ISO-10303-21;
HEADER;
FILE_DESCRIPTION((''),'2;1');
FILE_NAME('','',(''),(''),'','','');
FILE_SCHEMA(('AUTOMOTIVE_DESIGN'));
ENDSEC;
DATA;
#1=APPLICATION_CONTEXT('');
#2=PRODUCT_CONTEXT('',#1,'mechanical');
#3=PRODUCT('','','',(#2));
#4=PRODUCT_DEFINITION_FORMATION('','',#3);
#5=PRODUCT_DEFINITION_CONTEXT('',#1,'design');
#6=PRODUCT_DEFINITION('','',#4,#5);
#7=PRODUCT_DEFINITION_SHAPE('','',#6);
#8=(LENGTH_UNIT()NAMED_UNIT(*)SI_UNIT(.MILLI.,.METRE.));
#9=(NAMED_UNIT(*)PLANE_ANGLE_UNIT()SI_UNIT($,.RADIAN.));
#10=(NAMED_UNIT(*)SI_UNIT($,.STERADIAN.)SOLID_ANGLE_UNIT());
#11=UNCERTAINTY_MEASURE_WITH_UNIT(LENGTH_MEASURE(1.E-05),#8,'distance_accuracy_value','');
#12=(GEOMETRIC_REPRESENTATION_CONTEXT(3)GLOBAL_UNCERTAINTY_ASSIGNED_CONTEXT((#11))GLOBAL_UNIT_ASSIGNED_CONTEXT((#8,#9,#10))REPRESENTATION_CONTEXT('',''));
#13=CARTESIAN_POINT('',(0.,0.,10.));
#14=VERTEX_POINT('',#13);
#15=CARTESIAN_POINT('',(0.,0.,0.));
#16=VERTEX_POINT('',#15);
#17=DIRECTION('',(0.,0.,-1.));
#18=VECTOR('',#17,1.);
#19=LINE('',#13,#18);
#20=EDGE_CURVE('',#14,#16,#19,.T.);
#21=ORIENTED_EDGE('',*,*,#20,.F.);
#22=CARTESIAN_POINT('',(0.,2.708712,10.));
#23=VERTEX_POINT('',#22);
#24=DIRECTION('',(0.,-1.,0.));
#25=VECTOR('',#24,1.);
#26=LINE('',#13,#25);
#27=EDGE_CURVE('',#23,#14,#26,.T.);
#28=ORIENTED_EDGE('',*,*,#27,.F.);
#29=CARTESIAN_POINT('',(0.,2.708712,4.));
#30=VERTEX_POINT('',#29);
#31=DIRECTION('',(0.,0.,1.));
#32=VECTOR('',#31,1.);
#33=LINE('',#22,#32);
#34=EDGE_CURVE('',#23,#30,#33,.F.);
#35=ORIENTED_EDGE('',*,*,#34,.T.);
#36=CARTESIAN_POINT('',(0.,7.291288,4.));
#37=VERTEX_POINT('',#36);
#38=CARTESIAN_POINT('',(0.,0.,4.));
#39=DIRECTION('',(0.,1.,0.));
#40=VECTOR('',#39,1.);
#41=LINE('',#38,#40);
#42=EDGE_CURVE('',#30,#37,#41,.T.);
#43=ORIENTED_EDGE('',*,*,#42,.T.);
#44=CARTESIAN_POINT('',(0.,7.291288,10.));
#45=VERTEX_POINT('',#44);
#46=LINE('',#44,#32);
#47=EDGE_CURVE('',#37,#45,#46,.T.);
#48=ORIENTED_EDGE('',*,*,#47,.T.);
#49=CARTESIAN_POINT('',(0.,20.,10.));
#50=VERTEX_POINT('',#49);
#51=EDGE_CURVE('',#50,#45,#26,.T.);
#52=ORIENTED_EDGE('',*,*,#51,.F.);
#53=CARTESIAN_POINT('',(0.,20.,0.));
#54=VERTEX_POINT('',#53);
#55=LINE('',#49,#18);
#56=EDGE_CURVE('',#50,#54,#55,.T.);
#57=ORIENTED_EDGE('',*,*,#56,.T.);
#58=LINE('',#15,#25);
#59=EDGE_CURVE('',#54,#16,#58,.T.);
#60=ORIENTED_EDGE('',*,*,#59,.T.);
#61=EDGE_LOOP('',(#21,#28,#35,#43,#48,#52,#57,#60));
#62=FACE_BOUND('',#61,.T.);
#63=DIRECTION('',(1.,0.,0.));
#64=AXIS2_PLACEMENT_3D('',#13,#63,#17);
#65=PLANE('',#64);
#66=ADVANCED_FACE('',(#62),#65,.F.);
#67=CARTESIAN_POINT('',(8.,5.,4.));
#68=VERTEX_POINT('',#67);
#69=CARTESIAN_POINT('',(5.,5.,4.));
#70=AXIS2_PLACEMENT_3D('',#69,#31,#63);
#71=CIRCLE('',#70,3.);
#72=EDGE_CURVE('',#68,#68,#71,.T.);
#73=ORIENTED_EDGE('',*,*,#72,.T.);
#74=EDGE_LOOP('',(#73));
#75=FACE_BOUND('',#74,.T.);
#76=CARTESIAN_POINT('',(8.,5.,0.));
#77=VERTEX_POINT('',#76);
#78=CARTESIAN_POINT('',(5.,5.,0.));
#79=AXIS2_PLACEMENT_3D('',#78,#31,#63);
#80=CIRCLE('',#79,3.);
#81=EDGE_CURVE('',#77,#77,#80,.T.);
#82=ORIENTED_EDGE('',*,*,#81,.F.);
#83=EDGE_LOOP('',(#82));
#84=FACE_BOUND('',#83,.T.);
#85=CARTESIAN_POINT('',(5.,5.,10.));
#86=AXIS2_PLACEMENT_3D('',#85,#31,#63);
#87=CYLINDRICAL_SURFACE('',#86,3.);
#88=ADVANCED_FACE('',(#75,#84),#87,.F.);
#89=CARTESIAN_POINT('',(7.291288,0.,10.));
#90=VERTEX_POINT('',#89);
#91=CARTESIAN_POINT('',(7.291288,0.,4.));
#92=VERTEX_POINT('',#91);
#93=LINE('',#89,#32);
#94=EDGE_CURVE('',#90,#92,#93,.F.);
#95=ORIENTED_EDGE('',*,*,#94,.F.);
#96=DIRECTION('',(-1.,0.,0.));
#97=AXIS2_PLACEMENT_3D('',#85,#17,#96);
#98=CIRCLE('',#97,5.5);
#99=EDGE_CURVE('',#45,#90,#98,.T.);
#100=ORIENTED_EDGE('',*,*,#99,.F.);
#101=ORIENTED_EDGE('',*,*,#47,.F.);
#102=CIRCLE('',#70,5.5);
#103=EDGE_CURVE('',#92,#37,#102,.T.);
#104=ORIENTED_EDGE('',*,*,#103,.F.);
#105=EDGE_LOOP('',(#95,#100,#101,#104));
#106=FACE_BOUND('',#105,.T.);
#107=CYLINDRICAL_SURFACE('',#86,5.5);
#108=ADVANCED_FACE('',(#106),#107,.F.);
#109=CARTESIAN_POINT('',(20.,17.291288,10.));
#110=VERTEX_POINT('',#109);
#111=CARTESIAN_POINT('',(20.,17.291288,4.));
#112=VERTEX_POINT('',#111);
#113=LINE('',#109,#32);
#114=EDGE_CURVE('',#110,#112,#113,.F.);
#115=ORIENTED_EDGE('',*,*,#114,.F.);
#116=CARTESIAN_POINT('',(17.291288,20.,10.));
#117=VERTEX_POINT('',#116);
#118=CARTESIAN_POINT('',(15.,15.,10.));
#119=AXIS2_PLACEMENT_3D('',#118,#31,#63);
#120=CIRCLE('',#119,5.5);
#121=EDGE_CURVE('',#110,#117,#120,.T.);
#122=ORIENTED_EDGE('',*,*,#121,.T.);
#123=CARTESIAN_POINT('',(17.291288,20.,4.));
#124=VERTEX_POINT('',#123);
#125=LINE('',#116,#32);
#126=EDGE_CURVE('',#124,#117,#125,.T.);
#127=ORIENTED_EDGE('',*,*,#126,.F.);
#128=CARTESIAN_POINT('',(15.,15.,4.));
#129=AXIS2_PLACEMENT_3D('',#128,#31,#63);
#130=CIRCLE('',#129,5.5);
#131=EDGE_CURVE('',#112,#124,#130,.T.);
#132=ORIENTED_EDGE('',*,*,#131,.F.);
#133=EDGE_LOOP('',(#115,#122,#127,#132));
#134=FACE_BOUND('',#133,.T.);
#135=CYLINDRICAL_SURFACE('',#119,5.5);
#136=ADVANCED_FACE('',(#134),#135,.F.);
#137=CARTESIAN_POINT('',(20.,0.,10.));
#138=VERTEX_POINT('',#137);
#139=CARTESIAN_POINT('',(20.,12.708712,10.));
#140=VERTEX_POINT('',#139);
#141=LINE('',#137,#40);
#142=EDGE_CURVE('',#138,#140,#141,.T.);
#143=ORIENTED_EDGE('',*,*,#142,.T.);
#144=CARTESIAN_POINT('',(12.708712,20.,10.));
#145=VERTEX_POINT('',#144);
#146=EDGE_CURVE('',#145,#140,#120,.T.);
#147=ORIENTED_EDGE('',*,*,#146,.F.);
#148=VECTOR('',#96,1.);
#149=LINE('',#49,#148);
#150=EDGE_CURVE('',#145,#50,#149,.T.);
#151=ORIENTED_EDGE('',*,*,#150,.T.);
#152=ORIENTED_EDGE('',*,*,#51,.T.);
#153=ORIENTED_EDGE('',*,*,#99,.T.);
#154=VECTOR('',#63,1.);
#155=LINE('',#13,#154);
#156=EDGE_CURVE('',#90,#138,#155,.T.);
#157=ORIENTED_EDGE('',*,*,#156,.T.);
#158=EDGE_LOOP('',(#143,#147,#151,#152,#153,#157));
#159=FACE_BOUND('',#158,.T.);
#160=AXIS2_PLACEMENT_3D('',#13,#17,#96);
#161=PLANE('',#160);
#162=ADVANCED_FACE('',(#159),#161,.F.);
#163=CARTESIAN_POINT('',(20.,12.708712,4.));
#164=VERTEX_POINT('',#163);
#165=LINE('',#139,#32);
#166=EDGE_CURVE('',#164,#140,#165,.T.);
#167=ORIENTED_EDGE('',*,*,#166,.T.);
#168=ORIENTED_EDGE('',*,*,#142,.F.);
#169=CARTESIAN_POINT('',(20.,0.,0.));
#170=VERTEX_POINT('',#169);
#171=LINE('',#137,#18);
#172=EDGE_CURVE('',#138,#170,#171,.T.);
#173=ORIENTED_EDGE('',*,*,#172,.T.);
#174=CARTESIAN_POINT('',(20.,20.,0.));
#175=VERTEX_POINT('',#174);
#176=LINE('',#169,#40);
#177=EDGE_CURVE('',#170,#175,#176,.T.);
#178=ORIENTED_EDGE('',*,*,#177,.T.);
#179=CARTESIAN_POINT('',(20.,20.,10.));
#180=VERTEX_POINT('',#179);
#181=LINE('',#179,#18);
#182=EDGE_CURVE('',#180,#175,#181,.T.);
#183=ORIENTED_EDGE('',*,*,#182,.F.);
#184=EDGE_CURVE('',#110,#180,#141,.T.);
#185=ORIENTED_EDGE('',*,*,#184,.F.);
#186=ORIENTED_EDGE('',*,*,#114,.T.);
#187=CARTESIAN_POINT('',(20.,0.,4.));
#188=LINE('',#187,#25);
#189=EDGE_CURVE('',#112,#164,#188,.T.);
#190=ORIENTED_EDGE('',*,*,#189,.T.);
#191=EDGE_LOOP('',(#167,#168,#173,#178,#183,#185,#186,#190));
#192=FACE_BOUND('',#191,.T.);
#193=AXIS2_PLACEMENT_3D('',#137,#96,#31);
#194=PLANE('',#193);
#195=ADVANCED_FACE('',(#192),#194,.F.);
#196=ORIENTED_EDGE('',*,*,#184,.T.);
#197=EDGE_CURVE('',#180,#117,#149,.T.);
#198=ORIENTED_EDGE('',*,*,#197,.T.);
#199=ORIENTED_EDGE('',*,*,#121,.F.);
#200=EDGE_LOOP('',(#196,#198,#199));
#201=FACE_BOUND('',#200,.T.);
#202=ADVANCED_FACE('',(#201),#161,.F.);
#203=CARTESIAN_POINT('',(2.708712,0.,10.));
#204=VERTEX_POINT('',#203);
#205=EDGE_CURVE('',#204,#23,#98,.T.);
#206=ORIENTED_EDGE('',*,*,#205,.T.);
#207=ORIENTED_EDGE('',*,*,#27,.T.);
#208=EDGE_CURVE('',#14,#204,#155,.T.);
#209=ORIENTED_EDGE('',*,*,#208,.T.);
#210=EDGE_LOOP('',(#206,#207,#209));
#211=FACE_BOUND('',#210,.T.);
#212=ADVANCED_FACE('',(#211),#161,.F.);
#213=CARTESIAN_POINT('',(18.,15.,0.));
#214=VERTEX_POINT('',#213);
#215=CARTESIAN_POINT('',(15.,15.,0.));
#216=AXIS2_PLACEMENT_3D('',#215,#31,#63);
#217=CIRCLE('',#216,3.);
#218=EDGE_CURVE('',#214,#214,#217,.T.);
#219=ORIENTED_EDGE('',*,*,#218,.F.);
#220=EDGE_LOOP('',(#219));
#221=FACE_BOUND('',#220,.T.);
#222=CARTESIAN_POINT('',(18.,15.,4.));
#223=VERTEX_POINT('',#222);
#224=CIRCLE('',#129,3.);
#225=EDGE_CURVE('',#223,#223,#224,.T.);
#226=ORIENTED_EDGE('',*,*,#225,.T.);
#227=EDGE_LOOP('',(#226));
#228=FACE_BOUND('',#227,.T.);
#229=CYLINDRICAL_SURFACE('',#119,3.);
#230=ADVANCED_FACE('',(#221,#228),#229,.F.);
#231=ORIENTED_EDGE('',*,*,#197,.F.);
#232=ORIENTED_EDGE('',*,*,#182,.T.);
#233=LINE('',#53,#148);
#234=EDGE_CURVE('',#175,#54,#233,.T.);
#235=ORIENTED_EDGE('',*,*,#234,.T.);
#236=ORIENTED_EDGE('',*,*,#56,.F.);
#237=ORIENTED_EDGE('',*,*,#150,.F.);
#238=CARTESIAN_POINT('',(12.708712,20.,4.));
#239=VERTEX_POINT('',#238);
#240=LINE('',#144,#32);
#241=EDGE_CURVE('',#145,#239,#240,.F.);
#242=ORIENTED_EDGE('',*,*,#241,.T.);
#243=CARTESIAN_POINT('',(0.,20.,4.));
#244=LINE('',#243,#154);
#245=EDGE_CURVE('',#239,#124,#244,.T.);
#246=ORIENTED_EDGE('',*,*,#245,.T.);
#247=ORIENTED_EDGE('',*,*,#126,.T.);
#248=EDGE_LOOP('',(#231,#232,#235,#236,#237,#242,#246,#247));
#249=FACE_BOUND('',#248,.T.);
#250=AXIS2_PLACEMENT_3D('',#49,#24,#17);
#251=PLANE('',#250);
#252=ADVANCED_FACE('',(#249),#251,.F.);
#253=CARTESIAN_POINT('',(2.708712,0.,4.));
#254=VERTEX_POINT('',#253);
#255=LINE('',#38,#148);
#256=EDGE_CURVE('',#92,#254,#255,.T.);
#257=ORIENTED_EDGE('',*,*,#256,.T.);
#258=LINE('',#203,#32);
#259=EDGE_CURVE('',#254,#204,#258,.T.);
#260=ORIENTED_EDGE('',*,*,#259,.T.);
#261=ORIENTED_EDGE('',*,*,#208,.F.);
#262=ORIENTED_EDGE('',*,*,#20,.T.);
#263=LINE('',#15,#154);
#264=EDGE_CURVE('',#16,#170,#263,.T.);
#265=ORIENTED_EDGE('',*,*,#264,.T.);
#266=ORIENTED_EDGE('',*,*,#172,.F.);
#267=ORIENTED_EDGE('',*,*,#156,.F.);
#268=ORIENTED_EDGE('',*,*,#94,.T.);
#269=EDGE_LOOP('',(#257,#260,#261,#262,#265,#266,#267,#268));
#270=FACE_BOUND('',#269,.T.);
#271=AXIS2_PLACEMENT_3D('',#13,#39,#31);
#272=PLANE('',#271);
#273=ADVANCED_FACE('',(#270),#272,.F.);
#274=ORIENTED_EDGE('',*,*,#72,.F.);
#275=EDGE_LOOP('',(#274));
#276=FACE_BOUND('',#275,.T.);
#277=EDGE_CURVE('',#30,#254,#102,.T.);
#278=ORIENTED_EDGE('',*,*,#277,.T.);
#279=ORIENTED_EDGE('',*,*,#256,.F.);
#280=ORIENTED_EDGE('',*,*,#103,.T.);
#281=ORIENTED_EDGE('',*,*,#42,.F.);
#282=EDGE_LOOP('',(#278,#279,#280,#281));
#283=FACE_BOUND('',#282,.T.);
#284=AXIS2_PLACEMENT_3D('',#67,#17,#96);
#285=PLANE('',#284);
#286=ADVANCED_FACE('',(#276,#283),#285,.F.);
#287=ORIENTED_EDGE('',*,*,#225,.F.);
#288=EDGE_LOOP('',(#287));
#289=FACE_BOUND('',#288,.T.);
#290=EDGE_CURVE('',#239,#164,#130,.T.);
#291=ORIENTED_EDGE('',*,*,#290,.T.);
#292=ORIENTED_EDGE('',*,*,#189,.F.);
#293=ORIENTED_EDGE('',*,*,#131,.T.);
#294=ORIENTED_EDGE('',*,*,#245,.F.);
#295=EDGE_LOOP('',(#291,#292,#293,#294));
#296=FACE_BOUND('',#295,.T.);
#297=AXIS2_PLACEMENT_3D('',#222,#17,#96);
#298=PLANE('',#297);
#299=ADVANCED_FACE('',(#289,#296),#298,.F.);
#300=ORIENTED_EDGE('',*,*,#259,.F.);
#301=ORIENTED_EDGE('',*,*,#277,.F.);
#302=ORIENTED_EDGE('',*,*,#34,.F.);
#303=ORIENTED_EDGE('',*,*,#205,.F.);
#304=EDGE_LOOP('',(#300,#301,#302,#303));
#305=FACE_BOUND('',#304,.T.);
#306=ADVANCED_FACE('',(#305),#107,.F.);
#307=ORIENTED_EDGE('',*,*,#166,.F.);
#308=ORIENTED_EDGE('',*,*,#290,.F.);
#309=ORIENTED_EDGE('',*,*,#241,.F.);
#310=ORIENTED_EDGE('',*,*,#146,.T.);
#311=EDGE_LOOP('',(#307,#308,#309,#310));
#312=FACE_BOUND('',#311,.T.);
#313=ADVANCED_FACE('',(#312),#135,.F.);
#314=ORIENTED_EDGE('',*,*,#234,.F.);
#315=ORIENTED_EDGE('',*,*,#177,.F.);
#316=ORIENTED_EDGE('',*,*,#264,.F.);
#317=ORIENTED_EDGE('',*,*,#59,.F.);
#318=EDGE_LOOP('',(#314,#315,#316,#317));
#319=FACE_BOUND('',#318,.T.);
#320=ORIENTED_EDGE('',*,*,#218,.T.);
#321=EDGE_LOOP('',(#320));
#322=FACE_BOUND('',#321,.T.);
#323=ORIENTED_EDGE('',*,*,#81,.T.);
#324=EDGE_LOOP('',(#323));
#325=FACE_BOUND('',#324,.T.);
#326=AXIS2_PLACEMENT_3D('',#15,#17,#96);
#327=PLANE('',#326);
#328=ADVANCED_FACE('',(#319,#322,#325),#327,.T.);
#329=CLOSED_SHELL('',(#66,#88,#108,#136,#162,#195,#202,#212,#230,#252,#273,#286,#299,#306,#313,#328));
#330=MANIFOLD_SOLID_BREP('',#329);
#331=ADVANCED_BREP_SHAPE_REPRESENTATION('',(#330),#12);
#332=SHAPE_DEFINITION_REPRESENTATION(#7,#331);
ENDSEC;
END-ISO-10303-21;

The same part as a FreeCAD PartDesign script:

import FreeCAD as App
import Part
import Sketcher
Q = App.Units.Quantity


def add_polygon(sketch, points):
    """Adds a closed chain of lines whose ends are joined by coincident constraints."""
    first, n = sketch.GeometryCount, len(points)
    for a, b in zip(points, points[1:] + points[:1]):
        sketch.addGeometry(Part.LineSegment(App.Vector(*a, 0), App.Vector(*b, 0)), False)
    for i in range(n):
        sketch.addConstraint(Sketcher.Constraint("Coincident", first + i, 2, first + (i + 1) % n, 1))

doc = App.newDocument("Part")
body = doc.addObject("PartDesign::Body", "Body")

sketch1 = doc.addObject("Sketcher::SketchObject", "Sketch")
body.addObject(sketch1)
sketch1.AttachmentSupport = (doc.XY_Plane, [""])
sketch1.MapMode = "FlatFace"
add_polygon(sketch1, [(0, 20), (0, 0), (20, 0), (20, 20)])
sketch1.addConstraint([
    Sketcher.Constraint("Vertical", 0),
    Sketcher.Constraint("Horizontal", 1),
    Sketcher.Constraint("Vertical", 2),
    Sketcher.Constraint("Horizontal", 3),
    Sketcher.Constraint("Coincident", 0, 2, -1, 1),
    Sketcher.Constraint("Equal", 3, 0),
    Sketcher.Constraint("DistanceX", 1, 1, 1, 2, Q("20 mm")),
])
pad1 = doc.addObject("PartDesign::Pad", "Pad")
body.addObject(pad1)
pad1.Profile = sketch1
pad1.Length = 10

sketch2 = doc.addObject("Sketcher::SketchObject", "Sketch001")
body.addObject(sketch2)
sketch2.AttachmentSupport = (doc.XY_Plane, [""])
sketch2.MapMode = "FlatFace"
sketch2.AttachmentOffset = App.Placement(App.Vector(0, 0, 10), App.Rotation())
sketch2.addGeometry([
    Part.Circle(App.Vector(15, 15, 0), App.Vector(0, 0, 1), 3),
    Part.Circle(App.Vector(5, 5, 0), App.Vector(0, 0, 1), 3),
], False)
sketch2.addConstraint([
    Sketcher.Constraint("Equal", 0, 1),
    Sketcher.Constraint("Diameter", 0, Q("6 mm")),
    Sketcher.Constraint("DistanceX", -1, 1, 0, 3, Q("15 mm")),
    Sketcher.Constraint("DistanceY", -1, 1, 0, 3, Q("15 mm")),
    Sketcher.Constraint("DistanceX", -1, 1, 1, 3, Q("5 mm")),
    Sketcher.Constraint("DistanceY", -1, 1, 1, 3, Q("5 mm")),
])
doc.recompute()
hole = doc.addObject("PartDesign::Hole", "Hole")
body.addObject(hole)
hole.Profile = sketch2
hole.ThreadType = "None"
hole.Diameter = 6
hole.DepthType = "ThroughAll"
hole.HoleCutType = "Counterbore"
hole.HoleCutDiameter = 11
hole.HoleCutDepth = 6

doc.recompute()
